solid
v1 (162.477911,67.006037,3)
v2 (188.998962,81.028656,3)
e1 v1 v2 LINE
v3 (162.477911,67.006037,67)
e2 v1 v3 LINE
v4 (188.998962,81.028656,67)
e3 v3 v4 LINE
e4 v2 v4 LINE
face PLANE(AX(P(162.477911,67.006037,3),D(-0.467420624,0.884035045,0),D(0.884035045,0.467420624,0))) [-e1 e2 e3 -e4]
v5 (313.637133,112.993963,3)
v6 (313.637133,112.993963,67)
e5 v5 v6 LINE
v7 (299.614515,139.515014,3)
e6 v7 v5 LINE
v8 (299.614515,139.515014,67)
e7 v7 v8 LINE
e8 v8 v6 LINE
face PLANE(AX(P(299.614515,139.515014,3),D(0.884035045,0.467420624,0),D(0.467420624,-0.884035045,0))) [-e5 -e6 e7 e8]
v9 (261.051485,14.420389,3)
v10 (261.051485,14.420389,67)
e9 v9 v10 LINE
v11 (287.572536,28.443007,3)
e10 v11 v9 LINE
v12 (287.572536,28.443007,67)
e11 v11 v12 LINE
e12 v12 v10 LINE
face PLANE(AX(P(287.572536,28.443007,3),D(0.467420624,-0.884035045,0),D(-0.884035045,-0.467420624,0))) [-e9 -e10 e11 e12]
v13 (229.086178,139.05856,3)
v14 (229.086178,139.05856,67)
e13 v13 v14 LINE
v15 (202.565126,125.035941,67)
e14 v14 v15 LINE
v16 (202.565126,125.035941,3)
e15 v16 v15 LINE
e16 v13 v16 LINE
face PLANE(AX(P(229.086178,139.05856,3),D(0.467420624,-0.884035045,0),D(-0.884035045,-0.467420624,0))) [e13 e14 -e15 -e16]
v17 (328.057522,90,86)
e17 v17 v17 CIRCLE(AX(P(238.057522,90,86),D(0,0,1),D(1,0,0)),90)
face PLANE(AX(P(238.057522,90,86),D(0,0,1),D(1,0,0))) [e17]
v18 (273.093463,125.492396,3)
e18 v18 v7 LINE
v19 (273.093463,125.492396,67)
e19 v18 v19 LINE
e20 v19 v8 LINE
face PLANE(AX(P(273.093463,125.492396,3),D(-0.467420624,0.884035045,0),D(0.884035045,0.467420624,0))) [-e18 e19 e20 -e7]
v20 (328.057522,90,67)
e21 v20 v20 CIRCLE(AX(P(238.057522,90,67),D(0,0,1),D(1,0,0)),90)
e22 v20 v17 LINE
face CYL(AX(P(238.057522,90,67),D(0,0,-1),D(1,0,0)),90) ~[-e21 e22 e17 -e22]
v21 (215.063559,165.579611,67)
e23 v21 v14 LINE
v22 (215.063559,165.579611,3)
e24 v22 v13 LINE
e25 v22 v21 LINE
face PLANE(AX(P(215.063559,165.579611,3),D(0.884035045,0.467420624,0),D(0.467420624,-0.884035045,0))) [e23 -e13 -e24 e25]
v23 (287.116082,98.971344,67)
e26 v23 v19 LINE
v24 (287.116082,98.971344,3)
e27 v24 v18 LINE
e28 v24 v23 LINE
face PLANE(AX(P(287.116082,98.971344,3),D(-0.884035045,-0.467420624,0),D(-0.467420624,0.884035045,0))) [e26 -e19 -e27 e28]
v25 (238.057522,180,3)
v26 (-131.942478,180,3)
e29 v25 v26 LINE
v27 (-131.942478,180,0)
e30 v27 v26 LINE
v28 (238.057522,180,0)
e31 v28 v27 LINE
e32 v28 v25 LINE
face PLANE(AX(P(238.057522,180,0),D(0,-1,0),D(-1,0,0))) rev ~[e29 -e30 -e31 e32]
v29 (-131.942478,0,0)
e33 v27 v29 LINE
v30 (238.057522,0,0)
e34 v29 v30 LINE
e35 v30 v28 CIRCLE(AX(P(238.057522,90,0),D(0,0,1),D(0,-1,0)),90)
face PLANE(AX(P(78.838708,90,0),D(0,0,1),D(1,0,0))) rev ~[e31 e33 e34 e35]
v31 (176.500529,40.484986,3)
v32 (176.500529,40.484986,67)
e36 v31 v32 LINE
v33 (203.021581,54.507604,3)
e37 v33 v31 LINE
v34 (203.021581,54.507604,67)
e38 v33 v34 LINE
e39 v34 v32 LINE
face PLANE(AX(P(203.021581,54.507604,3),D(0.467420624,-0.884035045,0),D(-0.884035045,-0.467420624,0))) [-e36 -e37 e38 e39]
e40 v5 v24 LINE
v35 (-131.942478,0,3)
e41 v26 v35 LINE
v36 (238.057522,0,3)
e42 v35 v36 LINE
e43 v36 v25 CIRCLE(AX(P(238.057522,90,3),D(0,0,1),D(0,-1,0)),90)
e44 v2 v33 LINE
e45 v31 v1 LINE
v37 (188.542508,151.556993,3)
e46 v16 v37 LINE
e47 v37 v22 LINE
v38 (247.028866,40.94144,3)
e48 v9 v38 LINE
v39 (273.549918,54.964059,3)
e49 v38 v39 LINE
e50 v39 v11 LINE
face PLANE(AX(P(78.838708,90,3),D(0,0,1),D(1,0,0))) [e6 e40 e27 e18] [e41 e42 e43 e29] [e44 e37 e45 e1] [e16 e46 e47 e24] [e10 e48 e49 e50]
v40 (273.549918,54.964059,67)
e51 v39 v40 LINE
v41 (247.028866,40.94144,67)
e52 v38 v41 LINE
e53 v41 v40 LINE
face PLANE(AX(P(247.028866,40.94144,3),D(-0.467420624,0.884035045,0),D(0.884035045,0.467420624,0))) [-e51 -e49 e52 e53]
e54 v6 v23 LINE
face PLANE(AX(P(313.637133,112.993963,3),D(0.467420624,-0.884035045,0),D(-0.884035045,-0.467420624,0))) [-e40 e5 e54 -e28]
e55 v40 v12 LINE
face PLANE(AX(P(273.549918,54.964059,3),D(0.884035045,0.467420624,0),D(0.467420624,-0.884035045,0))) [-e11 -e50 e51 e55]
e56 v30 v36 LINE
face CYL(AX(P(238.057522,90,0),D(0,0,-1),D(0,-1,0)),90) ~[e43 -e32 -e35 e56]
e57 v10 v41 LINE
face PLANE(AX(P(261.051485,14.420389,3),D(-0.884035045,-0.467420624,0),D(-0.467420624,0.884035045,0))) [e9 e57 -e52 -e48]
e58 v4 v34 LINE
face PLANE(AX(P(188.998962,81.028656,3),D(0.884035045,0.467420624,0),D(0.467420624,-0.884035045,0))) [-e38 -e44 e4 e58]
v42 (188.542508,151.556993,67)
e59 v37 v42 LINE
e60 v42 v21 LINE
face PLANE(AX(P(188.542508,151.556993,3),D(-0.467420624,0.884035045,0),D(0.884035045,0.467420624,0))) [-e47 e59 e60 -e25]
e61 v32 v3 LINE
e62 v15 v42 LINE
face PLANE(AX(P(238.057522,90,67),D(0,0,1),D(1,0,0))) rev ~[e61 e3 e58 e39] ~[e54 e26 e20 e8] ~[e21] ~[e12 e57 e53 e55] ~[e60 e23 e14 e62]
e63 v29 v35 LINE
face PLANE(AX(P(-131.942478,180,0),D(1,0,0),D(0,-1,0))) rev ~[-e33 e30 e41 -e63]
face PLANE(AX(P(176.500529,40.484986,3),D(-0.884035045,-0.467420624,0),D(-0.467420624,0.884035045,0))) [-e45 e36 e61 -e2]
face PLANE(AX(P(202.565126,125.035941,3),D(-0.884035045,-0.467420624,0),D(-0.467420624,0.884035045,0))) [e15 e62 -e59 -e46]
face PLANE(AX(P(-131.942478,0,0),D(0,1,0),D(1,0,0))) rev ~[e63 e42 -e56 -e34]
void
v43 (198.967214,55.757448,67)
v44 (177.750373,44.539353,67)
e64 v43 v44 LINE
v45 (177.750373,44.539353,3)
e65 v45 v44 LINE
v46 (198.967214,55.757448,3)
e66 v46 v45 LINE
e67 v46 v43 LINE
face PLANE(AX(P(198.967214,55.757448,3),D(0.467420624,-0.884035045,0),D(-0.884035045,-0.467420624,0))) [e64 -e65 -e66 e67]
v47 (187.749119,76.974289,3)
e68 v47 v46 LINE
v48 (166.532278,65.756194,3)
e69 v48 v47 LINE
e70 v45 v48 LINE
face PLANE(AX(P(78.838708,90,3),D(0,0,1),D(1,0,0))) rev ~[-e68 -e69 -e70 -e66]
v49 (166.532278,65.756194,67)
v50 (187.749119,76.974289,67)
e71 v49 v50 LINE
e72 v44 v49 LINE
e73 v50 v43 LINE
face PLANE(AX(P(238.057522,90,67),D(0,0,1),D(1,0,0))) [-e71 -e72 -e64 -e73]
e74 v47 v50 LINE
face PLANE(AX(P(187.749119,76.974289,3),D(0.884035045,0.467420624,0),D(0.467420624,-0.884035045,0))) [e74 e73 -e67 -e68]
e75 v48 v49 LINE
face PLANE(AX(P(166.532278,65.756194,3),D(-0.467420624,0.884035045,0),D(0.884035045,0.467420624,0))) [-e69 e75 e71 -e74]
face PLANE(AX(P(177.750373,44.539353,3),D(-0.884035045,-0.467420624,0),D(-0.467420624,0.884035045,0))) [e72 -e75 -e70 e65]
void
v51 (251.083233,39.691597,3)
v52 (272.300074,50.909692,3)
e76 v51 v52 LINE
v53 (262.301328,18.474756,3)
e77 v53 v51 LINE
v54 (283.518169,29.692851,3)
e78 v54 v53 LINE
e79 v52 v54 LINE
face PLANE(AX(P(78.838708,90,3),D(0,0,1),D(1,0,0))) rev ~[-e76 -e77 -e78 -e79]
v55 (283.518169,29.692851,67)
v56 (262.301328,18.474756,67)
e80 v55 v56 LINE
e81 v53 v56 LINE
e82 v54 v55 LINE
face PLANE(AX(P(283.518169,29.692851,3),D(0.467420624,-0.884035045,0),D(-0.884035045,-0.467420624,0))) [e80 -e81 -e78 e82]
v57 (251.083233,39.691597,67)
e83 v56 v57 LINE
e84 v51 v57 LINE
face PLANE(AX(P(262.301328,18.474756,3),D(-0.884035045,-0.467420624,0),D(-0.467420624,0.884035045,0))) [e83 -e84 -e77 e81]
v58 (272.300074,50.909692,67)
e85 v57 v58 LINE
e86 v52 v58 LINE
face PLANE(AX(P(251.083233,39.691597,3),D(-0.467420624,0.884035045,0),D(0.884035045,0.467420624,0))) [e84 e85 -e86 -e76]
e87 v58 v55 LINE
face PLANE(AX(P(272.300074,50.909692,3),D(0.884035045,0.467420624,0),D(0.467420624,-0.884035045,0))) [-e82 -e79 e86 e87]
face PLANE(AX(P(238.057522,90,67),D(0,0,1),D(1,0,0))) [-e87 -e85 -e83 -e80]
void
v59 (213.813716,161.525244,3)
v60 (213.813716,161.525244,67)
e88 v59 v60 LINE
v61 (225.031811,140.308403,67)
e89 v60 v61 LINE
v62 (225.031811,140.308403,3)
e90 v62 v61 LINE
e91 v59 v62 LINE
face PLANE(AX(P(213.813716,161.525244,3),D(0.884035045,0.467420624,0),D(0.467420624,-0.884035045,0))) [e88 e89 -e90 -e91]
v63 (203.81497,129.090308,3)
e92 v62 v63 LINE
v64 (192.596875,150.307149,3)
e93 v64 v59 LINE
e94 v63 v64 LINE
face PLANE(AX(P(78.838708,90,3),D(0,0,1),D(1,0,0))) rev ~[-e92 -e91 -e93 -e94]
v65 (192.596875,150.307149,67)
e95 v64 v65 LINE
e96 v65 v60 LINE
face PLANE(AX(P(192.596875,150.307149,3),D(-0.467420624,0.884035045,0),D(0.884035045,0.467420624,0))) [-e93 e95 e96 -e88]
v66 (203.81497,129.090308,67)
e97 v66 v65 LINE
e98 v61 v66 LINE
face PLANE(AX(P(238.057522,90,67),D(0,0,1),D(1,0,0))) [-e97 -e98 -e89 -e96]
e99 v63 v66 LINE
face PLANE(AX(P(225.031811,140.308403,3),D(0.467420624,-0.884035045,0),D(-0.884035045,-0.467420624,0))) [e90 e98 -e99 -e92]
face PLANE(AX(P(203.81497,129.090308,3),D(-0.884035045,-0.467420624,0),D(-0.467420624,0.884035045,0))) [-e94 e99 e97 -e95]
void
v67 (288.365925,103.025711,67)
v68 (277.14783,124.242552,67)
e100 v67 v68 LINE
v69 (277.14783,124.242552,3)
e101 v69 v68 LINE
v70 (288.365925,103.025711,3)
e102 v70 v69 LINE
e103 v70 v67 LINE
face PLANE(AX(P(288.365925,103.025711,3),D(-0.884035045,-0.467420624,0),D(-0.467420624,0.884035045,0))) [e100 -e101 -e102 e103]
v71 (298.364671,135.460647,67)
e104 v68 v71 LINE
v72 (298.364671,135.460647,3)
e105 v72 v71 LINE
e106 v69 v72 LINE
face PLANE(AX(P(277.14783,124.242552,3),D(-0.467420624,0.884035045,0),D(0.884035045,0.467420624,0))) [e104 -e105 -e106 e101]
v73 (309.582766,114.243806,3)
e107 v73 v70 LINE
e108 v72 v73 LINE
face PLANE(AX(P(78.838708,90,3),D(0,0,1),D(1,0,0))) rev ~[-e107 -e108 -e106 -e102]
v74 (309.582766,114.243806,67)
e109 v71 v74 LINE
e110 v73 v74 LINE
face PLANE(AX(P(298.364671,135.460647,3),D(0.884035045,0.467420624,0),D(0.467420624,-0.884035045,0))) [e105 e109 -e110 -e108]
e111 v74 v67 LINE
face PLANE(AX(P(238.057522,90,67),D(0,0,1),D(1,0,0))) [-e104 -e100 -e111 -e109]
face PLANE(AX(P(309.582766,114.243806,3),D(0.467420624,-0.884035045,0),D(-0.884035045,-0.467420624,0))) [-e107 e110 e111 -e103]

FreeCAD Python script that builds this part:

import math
import FreeCAD as App
import Part
import Sketcher

doc = App.newDocument("Part")
params = doc.addObject("Spreadsheet::Sheet", "Params")
for row, (alias, value) in enumerate([
    ("sketch1_radius", "90 mm"),
    ("sketch1_width", "370 mm"),
    ("pad1_length", "3 mm"),
    ("sketch2_length", "30 mm"),
    ("sketch2_length2", "24 mm"),
    ("pad2_length", "64 mm"),
    ("sketch3_diameter", "180 mm"),
    ("pad3_length", "19 mm"),
], start=1):
    params.set(f"A{row}", alias)
    params.set(f"B{row}", "=" + value)
    params.setAlias(f"B{row}", alias)

body = doc.addObject("PartDesign::Body", "Body")

# Sketch on XY plane
sketch1 = doc.addObject("Sketcher::SketchObject", "Sketch")
body.addObject(sketch1)
sketch1.AttachmentSupport = (doc.XY_Plane, [""])
sketch1.MapMode = "FlatFace"
sketch1.addGeometry([
    Part.LineSegment(App.Vector(-132, 0, 0), App.Vector(238, 0, 0)),
    Part.ArcOfCircle(Part.Circle(App.Vector(238, 90, 0), App.Vector(0, 0, 1), 90), math.radians(-90), math.radians(90)),
    Part.LineSegment(App.Vector(238, 180, 0), App.Vector(-132, 180, 0)),
    Part.LineSegment(App.Vector(-132, 180, 0), App.Vector(-132, 0, 0)),
], False)
sketch1.addConstraint([
    Sketcher.Constraint("Tangent", 0, 2, 1, 1),
    Sketcher.Constraint("Tangent", 1, 2, 2, 1),
    Sketcher.Constraint("Coincident", 2, 2, 3, 1),
    Sketcher.Constraint("Coincident", 3, 2, 0, 1),
    Sketcher.Constraint("Horizontal", 0),
    Sketcher.Constraint("Horizontal", 2),
    Sketcher.Constraint("Vertical", 3),
    Sketcher.Constraint("PointOnObject", 0, 2, -1),
    Sketcher.Constraint("Radius", 1, 90.0),
    Sketcher.Constraint("DistanceX", 0, 1, 0, 2, 370.0),
    Sketcher.Constraint("DistanceX", -1, 1, 1, 3, 238.057522),
])
sketch1.setExpression("Constraints[8]", "Params.sketch1_radius")
sketch1.setExpression("Constraints[9]", "Params.sketch1_width")
pad1 = doc.addObject("PartDesign::Pad", "Pad")
body.addObject(pad1)
pad1.Profile = sketch1
pad1.setExpression("Length", "Params.pad1_length")

# Sketch on XY plane
sketch2 = doc.addObject("Sketcher::SketchObject", "Sketch001")
body.addObject(sketch2)
sketch2.AttachmentSupport = (doc.XY_Plane, [""])
sketch2.MapMode = "FlatFace"
sketch2.AttachmentOffset = App.Placement(App.Vector(0, 0, 3), App.Rotation())
sketch2.addGeometry([
    Part.LineSegment(App.Vector(177, 40, 0), App.Vector(203, 55, 0)),  # 0
    Part.LineSegment(App.Vector(203, 55, 0), App.Vector(189, 81, 0)),  # 1
    Part.LineSegment(App.Vector(189, 81, 0), App.Vector(162, 67, 0)),  # 2
    Part.LineSegment(App.Vector(162, 67, 0), App.Vector(177, 40, 0)),  # 3
    Part.LineSegment(App.Vector(178, 45, 0), App.Vector(167, 66, 0)),  # 4
    Part.LineSegment(App.Vector(167, 66, 0), App.Vector(188, 77, 0)),  # 5
    Part.LineSegment(App.Vector(188, 77, 0), App.Vector(199, 56, 0)),  # 6
    Part.LineSegment(App.Vector(199, 56, 0), App.Vector(178, 45, 0)),  # 7
    Part.LineSegment(App.Vector(261, 14, 0), App.Vector(288, 28, 0)),  # 8
    Part.LineSegment(App.Vector(288, 28, 0), App.Vector(274, 55, 0)),  # 9
    Part.LineSegment(App.Vector(274, 55, 0), App.Vector(247, 41, 0)),  # 10
    Part.LineSegment(App.Vector(247, 41, 0), App.Vector(261, 14, 0)),  # 11
    Part.LineSegment(App.Vector(262, 18, 0), App.Vector(251, 40, 0)),  # 12
    Part.LineSegment(App.Vector(251, 40, 0), App.Vector(272, 51, 0)),  # 13
    Part.LineSegment(App.Vector(272, 51, 0), App.Vector(284, 30, 0)),  # 14
    Part.LineSegment(App.Vector(284, 30, 0), App.Vector(262, 18, 0)),  # 15
    Part.LineSegment(App.Vector(314, 113, 0), App.Vector(300, 140, 0)),  # 16
    Part.LineSegment(App.Vector(300, 140, 0), App.Vector(273, 125, 0)),  # 17
    Part.LineSegment(App.Vector(273, 125, 0), App.Vector(287, 99, 0)),  # 18
    Part.LineSegment(App.Vector(287, 99, 0), App.Vector(314, 113, 0)),  # 19
    Part.LineSegment(App.Vector(310, 114, 0), App.Vector(288, 103, 0)),  # 20
    Part.LineSegment(App.Vector(288, 103, 0), App.Vector(277, 124, 0)),  # 21
    Part.LineSegment(App.Vector(277, 124, 0), App.Vector(298, 135, 0)),  # 22
    Part.LineSegment(App.Vector(298, 135, 0), App.Vector(310, 114, 0)),  # 23
    Part.LineSegment(App.Vector(215, 166, 0), App.Vector(189, 152, 0)),  # 24
    Part.LineSegment(App.Vector(189, 152, 0), App.Vector(203, 125, 0)),  # 25
    Part.LineSegment(App.Vector(203, 125, 0), App.Vector(229, 139, 0)),  # 26
    Part.LineSegment(App.Vector(229, 139, 0), App.Vector(215, 166, 0)),  # 27
    Part.LineSegment(App.Vector(204, 129, 0), App.Vector(193, 150, 0)),  # 28
    Part.LineSegment(App.Vector(193, 150, 0), App.Vector(214, 162, 0)),  # 29
    Part.LineSegment(App.Vector(214, 162, 0), App.Vector(225, 140, 0)),  # 30
    Part.LineSegment(App.Vector(225, 140, 0), App.Vector(204, 129, 0)),  # 31
], False)
sketch2.addConstraint([
    Sketcher.Constraint("Coincident", 0, 2, 1, 1),
    Sketcher.Constraint("Coincident", 1, 2, 2, 1),
    Sketcher.Constraint("Coincident", 2, 2, 3, 1),
    Sketcher.Constraint("Coincident", 3, 2, 0, 1),
    Sketcher.Constraint("Coincident", 4, 2, 5, 1),
    Sketcher.Constraint("Coincident", 5, 2, 6, 1),
    Sketcher.Constraint("Coincident", 6, 2, 7, 1),
    Sketcher.Constraint("Coincident", 7, 2, 4, 1),
    Sketcher.Constraint("Coincident", 8, 2, 9, 1),
    Sketcher.Constraint("Coincident", 9, 2, 10, 1),
    Sketcher.Constraint("Coincident", 10, 2, 11, 1),
    Sketcher.Constraint("Coincident", 11, 2, 8, 1),
    Sketcher.Constraint("Coincident", 12, 2, 13, 1),
    Sketcher.Constraint("Coincident", 13, 2, 14, 1),
    Sketcher.Constraint("Coincident", 14, 2, 15, 1),
    Sketcher.Constraint("Coincident", 15, 2, 12, 1),
    Sketcher.Constraint("Coincident", 16, 2, 17, 1),
    Sketcher.Constraint("Coincident", 17, 2, 18, 1),
    Sketcher.Constraint("Coincident", 18, 2, 19, 1),
    Sketcher.Constraint("Coincident", 19, 2, 16, 1),
    Sketcher.Constraint("Coincident", 20, 2, 21, 1),
    Sketcher.Constraint("Coincident", 21, 2, 22, 1),
    Sketcher.Constraint("Coincident", 22, 2, 23, 1),
    Sketcher.Constraint("Coincident", 23, 2, 20, 1),
    Sketcher.Constraint("Coincident", 24, 2, 25, 1),
    Sketcher.Constraint("Coincident", 25, 2, 26, 1),
    Sketcher.Constraint("Coincident", 26, 2, 27, 1),
    Sketcher.Constraint("Coincident", 27, 2, 24, 1),
    Sketcher.Constraint("Coincident", 28, 2, 29, 1),
    Sketcher.Constraint("Coincident", 29, 2, 30, 1),
    Sketcher.Constraint("Coincident", 30, 2, 31, 1),
    Sketcher.Constraint("Coincident", 31, 2, 28, 1),
    Sketcher.Constraint("Perpendicular", 0, 1),
    Sketcher.Constraint("Perpendicular", 1, 2),
    Sketcher.Constraint("Perpendicular", 2, 3),
    Sketcher.Constraint("Parallel", 3, 4),
    Sketcher.Constraint("Perpendicular", 4, 5),
    Sketcher.Constraint("Perpendicular", 5, 6),
    Sketcher.Constraint("Perpendicular", 6, 7),
    Sketcher.Constraint("Parallel", 7, 8),
    Sketcher.Constraint("Perpendicular", 8, 9),
    Sketcher.Constraint("Perpendicular", 9, 10),
    Sketcher.Constraint("Perpendicular", 10, 11),
    Sketcher.Constraint("Parallel", 11, 12),
    Sketcher.Constraint("Perpendicular", 12, 13),
    Sketcher.Constraint("Perpendicular", 13, 14),
    Sketcher.Constraint("Perpendicular", 14, 15),
    Sketcher.Constraint("Perpendicular", 15, 16),
    Sketcher.Constraint("Perpendicular", 16, 17),
    Sketcher.Constraint("Perpendicular", 17, 18),
    Sketcher.Constraint("Perpendicular", 18, 19),
    Sketcher.Constraint("Parallel", 19, 20),
    Sketcher.Constraint("Perpendicular", 20, 21),
    Sketcher.Constraint("Perpendicular", 21, 22),
    Sketcher.Constraint("Perpendicular", 22, 23),
    Sketcher.Constraint("Perpendicular", 23, 24),
    Sketcher.Constraint("Perpendicular", 24, 25),
    Sketcher.Constraint("Perpendicular", 25, 26),
    Sketcher.Constraint("Perpendicular", 26, 27),
    Sketcher.Constraint("Parallel", 27, 28),
    Sketcher.Constraint("Perpendicular", 28, 29),
    Sketcher.Constraint("Perpendicular", 29, 30),
    Sketcher.Constraint("Perpendicular", 30, 31),
    Sketcher.Constraint("Equal", 0, 1),
    Sketcher.Constraint("Equal", 4, 5),
    Sketcher.Constraint("Equal", 3, 8),
    Sketcher.Constraint("Equal", 8, 9),
    Sketcher.Constraint("Equal", 7, 12),
    Sketcher.Constraint("Equal", 12, 13),
    Sketcher.Constraint("Equal", 11, 16),
    Sketcher.Constraint("Equal", 16, 17),
    Sketcher.Constraint("Equal", 15, 20),
    Sketcher.Constraint("Equal", 20, 21),
    Sketcher.Constraint("Equal", 19, 24),
    Sketcher.Constraint("Equal", 24, 25),
    Sketcher.Constraint("Equal", 23, 28),
    Sketcher.Constraint("Equal", 28, 29),
    Sketcher.Constraint("Distance", 0, 30.0),
    Sketcher.Constraint("Distance", 4, 24.0),
    Sketcher.Constraint("DistanceX", 5, 2, 9, 2, 85.800799),
    Sketcher.Constraint("DistanceY", 12, 2, 17, 2, 85.800799),
    Sketcher.Constraint("DistanceY", 4, 2, 24, 2, 85.800799),
    Sketcher.Constraint("DistanceX", -1, 1, 0, 2, 203.021581),
    Sketcher.Constraint("DistanceX", -1, 1, 1, 2, 188.998962),
    Sketcher.Constraint("DistanceX", -1, 1, 5, 2, 187.749119),
    Sketcher.Constraint("DistanceY", -1, 1, 5, 2, 76.974289),
    Sketcher.Constraint("DistanceY", -1, 1, 9, 2, 54.964059),
    Sketcher.Constraint("DistanceY", -1, 1, 13, 2, 50.909692),
    Sketcher.Constraint("DistanceX", -1, 1, 14, 2, 283.518169),
    Sketcher.Constraint("DistanceY", -1, 1, 20, 2, 103.025711),
    Sketcher.Constraint("DistanceX", -1, 1, 21, 2, 277.14783),
    Sketcher.Constraint("DistanceX", -1, 1, 27, 2, 215.063559),
    Sketcher.Constraint("DistanceY", -1, 1, 28, 2, 150.307149),
    Sketcher.Constraint("DistanceX", -1, 1, 30, 2, 225.031811),
    Sketcher.Constraint("DistanceY", 4, 2, 1, 2, 15.272462),
    Sketcher.Constraint("DistanceX", 13, 2, 16, 2, 27.31444),
])
sketch2.setExpression("Constraints[77]", "Params.sketch2_length")
sketch2.setExpression("Constraints[78]", "Params.sketch2_length2")
pad2 = doc.addObject("PartDesign::Pad", "Pad001")
body.addObject(pad2)
pad2.Profile = sketch2
pad2.setExpression("Length", "Params.pad2_length")

# Sketch on XY plane
sketch3 = doc.addObject("Sketcher::SketchObject", "Sketch002")
body.addObject(sketch3)
sketch3.AttachmentSupport = (doc.XY_Plane, [""])
sketch3.MapMode = "FlatFace"
sketch3.AttachmentOffset = App.Placement(App.Vector(0, 0, 67), App.Rotation())
sketch3.addGeometry(Part.Circle(App.Vector(238, 90, 0), App.Vector(0, 0, 1), 90), False)
sketch3.addConstraint([
    Sketcher.Constraint("Diameter", 0, 180.0),
    Sketcher.Constraint("DistanceY", -1, 1, 0, 3, 90.0),
    Sketcher.Constraint("DistanceX", -1, 1, 0, 3, 238.057522),
])
sketch3.setExpression("Constraints[0]", "Params.sketch3_diameter")
pad3 = doc.addObject("PartDesign::Pad", "Pad002")
body.addObject(pad3)
pad3.Profile = sketch3
pad3.setExpression("Length", "Params.pad3_length")

doc.recompute()
